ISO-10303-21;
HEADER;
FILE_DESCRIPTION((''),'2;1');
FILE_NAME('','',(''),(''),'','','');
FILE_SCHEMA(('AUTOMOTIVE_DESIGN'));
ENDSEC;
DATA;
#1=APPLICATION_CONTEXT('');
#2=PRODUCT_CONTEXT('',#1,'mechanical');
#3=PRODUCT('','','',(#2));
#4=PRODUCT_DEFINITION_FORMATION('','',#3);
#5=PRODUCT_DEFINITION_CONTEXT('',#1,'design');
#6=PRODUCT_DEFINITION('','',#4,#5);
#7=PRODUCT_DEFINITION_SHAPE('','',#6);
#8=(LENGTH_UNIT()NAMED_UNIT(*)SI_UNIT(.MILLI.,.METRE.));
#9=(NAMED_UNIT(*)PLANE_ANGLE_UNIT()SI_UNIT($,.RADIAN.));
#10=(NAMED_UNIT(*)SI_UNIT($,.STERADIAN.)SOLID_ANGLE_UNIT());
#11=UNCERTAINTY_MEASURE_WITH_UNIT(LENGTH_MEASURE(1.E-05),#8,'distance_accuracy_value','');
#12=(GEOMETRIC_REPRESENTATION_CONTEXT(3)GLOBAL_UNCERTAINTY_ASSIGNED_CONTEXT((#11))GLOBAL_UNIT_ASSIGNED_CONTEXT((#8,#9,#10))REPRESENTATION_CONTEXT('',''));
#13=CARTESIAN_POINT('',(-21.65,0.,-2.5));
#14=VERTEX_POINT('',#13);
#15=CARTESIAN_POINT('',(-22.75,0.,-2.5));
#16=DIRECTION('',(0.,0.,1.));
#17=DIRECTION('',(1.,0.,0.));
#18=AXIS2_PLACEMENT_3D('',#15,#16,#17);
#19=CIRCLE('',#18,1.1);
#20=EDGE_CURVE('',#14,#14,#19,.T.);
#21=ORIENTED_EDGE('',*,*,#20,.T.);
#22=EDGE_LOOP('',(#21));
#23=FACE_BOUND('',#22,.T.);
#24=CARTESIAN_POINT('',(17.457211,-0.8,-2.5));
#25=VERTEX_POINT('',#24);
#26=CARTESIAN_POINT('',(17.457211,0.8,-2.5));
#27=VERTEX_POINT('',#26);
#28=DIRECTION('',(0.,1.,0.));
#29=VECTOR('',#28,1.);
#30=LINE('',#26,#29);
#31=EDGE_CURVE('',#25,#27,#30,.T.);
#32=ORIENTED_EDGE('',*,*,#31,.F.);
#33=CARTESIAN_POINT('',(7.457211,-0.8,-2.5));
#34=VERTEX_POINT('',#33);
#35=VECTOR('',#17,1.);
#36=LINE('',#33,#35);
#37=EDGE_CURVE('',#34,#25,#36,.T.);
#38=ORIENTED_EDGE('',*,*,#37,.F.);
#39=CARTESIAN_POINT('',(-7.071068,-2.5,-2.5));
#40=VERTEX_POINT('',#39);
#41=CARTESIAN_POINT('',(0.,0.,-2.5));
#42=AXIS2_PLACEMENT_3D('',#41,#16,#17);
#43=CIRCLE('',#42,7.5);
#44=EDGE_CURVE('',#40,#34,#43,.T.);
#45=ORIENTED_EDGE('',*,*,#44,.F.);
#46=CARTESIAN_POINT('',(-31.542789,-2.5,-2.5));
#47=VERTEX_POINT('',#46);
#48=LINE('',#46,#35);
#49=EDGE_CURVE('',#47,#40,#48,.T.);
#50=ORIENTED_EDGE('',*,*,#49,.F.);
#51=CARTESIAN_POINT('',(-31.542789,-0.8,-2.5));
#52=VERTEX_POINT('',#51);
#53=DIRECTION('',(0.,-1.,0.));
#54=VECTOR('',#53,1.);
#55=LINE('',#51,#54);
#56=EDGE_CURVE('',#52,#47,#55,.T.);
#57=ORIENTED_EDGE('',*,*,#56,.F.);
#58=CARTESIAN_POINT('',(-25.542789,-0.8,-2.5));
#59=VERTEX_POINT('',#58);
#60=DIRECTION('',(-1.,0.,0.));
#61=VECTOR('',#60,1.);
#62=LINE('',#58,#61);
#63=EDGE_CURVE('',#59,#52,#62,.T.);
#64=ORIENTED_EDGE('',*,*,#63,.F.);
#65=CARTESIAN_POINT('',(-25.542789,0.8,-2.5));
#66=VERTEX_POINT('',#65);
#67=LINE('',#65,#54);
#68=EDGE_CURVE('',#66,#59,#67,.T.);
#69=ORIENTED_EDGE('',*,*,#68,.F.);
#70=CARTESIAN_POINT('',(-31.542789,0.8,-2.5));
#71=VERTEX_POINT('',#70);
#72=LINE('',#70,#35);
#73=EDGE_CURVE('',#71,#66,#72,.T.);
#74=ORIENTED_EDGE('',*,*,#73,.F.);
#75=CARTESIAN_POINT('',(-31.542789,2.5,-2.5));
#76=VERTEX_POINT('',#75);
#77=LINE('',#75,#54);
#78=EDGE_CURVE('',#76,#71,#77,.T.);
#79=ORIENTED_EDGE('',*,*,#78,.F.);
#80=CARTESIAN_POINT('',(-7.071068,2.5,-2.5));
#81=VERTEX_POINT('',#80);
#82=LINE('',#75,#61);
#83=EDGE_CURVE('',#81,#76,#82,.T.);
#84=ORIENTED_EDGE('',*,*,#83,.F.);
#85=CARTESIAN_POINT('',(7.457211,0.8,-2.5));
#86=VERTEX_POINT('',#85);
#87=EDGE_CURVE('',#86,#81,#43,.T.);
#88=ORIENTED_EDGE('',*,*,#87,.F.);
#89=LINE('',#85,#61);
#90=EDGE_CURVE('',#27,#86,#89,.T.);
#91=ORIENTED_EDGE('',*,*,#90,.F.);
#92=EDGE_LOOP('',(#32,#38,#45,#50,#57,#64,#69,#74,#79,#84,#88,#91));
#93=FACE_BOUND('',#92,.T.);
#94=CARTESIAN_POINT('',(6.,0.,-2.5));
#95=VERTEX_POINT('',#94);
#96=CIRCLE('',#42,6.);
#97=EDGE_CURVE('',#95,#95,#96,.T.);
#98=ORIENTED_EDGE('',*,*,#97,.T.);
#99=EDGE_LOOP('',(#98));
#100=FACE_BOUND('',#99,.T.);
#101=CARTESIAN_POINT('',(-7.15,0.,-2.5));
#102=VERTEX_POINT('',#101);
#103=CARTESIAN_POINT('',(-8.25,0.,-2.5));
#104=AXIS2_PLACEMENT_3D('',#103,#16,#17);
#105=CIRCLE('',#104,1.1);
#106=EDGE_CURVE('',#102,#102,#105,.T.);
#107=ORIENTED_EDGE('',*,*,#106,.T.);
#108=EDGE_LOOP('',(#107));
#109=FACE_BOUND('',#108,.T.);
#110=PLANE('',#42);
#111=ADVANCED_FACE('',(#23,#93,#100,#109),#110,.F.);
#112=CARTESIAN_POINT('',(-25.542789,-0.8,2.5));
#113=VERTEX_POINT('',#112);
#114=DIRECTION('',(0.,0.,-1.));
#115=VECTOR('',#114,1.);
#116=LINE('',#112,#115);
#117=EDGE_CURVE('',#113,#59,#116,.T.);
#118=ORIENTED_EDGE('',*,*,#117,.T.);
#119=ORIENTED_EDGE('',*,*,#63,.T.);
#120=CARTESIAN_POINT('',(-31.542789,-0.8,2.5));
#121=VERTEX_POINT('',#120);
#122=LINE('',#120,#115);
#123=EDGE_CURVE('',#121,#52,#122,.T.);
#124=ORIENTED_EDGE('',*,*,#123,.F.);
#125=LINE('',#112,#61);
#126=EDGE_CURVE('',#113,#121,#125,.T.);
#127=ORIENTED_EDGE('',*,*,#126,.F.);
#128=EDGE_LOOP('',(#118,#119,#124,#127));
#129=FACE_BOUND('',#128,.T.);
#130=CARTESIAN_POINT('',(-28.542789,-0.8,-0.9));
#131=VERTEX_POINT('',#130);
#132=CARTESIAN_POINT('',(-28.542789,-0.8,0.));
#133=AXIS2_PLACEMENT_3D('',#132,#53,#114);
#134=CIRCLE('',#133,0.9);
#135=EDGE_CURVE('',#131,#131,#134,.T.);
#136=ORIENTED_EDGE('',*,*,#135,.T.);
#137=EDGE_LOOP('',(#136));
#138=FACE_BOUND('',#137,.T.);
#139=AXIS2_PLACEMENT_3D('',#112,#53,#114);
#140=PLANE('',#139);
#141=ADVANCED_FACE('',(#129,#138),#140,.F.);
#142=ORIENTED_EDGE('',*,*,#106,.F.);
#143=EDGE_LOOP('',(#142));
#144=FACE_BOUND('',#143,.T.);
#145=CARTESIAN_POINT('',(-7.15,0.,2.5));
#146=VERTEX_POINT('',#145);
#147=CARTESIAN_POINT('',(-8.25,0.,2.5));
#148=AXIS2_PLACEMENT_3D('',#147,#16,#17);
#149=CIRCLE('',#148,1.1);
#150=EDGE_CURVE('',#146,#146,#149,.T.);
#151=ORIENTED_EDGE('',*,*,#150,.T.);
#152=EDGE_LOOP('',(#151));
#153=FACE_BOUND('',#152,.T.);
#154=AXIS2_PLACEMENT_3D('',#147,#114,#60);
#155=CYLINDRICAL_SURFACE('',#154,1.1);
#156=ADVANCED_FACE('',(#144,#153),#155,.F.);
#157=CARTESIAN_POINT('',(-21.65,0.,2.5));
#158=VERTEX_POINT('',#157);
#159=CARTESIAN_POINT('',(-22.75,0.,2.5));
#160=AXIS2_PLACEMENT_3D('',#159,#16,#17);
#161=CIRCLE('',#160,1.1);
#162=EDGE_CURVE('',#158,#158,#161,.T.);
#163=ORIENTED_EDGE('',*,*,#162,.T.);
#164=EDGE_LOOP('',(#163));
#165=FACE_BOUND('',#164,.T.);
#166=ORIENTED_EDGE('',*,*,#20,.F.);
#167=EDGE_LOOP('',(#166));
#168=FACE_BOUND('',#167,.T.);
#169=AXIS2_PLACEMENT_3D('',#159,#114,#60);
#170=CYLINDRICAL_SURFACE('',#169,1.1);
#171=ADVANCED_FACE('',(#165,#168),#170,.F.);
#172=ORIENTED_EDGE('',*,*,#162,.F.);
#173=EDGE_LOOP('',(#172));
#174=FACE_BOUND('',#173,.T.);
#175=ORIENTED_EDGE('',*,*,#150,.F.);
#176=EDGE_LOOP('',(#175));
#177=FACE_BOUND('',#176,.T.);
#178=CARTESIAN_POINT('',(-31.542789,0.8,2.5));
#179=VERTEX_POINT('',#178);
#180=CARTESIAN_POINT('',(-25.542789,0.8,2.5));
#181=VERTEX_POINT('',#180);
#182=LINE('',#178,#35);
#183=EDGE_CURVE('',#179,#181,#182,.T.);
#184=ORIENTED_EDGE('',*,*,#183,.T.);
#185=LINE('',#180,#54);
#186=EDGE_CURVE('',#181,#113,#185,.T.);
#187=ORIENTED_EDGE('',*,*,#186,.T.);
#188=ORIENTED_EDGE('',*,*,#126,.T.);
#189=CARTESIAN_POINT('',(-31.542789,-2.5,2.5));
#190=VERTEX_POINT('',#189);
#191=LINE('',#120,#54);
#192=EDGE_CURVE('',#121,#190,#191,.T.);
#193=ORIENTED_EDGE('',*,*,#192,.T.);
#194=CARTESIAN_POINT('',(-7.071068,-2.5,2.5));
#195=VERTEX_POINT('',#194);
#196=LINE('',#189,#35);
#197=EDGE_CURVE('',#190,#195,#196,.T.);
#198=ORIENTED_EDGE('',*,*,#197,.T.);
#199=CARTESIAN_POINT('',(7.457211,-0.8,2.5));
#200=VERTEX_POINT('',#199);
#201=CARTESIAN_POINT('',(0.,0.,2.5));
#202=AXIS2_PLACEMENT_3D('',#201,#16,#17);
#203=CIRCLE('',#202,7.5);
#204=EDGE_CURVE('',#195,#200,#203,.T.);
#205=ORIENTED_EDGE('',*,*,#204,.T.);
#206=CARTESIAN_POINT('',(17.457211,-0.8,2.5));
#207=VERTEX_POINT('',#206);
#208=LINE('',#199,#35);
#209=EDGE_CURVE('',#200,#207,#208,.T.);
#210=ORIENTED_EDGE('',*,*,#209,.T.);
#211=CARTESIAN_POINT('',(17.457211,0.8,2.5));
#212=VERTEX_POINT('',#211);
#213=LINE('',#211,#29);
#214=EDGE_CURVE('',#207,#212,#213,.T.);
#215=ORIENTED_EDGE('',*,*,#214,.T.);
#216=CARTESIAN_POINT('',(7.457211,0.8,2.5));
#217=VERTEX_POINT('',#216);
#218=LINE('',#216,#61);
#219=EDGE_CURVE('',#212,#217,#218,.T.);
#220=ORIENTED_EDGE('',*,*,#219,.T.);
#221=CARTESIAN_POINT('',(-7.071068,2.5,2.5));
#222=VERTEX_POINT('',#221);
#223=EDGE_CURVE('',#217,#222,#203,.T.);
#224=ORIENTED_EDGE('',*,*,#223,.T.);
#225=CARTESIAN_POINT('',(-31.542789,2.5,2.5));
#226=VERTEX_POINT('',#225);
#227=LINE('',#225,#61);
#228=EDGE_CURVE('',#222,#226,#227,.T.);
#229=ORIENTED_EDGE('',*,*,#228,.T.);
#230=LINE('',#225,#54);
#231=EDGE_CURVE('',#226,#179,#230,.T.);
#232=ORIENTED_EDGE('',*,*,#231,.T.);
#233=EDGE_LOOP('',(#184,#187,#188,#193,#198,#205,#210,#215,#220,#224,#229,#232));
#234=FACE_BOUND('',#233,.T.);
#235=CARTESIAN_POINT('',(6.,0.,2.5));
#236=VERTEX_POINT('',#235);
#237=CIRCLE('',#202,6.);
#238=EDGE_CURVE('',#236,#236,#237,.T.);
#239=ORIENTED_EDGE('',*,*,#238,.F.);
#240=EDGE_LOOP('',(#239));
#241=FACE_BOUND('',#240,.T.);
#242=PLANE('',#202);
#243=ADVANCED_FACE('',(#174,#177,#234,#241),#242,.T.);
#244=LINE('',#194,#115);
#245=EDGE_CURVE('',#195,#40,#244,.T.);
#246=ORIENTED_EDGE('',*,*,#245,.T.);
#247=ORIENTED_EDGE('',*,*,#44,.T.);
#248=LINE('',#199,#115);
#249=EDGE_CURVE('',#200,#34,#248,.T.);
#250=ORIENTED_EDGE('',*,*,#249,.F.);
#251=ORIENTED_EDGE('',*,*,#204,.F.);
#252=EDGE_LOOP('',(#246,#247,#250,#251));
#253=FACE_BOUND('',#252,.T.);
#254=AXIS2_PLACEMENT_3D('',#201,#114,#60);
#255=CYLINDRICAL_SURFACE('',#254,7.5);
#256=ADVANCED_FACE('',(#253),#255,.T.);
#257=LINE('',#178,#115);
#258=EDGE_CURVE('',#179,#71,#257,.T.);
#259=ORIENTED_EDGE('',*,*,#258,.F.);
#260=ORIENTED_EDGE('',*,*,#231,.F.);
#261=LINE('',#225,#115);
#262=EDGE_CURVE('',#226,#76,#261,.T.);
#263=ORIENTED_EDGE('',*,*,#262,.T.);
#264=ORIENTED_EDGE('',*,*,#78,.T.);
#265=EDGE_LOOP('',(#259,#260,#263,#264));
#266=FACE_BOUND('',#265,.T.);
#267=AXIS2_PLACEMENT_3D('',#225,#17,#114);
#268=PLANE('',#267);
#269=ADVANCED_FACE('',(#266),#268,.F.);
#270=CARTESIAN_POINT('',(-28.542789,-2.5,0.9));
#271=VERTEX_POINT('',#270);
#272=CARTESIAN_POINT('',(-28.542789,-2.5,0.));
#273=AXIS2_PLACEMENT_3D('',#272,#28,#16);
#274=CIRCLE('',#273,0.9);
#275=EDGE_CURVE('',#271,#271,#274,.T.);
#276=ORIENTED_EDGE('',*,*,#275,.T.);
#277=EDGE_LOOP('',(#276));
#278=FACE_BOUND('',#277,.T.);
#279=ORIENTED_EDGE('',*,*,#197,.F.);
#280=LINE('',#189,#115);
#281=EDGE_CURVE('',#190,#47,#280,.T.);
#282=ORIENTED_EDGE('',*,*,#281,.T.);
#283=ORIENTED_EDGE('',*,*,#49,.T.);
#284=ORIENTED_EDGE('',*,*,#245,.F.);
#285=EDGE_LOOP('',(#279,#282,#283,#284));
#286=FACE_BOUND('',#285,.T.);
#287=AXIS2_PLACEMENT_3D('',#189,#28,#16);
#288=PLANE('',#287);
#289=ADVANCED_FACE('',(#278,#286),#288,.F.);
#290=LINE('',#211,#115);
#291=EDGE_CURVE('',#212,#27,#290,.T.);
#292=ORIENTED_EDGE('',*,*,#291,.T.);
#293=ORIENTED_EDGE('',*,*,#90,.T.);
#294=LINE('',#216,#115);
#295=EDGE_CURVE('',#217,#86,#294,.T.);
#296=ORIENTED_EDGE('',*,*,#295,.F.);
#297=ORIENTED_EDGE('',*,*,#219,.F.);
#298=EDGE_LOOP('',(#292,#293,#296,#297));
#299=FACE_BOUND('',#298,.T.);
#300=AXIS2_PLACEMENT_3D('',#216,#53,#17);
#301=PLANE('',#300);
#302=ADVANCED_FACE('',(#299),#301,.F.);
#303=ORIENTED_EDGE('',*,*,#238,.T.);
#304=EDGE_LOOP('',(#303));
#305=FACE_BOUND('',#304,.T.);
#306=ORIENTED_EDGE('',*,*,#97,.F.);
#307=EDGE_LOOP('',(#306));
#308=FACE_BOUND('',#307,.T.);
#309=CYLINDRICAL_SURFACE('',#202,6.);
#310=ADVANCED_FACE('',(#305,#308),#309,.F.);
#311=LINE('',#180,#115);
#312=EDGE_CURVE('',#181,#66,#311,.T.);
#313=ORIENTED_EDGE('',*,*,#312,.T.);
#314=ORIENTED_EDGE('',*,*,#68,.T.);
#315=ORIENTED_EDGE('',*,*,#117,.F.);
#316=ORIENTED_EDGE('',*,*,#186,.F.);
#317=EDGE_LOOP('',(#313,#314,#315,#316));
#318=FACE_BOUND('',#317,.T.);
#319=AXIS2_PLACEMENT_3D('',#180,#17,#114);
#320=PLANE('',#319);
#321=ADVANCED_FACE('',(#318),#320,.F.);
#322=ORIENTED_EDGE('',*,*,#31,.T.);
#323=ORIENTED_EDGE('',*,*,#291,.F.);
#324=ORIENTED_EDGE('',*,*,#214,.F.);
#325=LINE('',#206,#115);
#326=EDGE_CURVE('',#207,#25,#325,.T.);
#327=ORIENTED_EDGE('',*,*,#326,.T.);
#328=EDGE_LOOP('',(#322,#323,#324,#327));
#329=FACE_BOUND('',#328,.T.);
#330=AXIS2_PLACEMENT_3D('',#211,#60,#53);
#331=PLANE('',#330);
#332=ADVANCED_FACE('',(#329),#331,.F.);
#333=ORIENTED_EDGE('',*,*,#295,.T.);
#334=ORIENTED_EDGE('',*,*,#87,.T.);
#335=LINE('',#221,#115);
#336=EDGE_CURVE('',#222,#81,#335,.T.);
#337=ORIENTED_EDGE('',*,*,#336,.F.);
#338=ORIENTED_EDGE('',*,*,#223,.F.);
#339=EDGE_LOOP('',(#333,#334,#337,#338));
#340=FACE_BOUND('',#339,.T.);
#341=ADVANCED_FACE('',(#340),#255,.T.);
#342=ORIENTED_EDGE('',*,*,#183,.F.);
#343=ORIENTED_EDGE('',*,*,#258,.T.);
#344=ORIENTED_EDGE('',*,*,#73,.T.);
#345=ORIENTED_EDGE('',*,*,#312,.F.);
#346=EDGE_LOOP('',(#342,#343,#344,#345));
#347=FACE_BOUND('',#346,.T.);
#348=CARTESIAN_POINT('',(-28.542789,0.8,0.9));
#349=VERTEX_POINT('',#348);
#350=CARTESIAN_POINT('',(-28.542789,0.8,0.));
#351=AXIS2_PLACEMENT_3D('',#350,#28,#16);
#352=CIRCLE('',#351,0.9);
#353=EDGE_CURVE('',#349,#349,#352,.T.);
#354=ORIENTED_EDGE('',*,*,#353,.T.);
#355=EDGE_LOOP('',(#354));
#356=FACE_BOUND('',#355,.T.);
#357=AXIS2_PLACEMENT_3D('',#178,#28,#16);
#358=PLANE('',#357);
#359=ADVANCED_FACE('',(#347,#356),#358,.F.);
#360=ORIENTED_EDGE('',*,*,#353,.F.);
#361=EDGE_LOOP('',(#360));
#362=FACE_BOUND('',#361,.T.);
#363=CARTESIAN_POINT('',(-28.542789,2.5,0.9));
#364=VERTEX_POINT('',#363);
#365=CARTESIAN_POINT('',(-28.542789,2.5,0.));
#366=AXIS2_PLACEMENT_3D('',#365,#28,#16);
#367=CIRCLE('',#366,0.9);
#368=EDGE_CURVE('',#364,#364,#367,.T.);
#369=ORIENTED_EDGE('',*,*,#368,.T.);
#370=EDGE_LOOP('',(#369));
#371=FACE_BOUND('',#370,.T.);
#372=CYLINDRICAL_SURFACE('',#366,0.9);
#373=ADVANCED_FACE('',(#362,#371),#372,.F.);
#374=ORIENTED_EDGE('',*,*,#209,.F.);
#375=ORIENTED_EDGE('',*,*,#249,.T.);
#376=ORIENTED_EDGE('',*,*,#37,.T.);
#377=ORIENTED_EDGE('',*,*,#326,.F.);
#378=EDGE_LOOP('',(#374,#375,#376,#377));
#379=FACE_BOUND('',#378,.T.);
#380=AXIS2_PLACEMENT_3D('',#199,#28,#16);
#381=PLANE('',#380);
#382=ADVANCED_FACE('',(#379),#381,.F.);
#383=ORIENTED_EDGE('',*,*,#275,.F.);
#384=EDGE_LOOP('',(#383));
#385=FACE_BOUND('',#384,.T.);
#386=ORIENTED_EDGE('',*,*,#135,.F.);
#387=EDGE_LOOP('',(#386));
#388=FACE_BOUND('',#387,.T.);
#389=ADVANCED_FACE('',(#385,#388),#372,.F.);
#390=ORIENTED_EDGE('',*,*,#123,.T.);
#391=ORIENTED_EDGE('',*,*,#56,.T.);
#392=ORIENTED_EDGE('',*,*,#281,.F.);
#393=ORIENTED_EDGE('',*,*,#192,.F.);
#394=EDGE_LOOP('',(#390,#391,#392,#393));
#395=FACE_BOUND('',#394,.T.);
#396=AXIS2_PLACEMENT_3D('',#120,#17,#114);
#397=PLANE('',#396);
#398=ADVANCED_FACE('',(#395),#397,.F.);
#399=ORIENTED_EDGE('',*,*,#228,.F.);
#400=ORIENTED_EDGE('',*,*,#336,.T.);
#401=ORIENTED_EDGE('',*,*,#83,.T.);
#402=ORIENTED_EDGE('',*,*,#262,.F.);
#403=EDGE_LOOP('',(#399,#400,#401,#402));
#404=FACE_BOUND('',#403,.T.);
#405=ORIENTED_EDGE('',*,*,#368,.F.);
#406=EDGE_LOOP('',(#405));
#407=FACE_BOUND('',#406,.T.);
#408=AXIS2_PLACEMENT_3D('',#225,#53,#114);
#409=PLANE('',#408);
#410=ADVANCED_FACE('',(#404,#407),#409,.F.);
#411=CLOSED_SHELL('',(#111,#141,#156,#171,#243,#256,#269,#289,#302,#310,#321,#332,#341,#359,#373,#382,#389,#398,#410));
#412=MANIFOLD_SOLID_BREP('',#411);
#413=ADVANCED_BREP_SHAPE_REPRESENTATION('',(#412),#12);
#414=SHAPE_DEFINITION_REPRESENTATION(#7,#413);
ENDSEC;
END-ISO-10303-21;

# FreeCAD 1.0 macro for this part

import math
import FreeCAD as App
import Part
import Sketcher

doc = App.newDocument("Part")
body = doc.addObject("PartDesign::Body", "Body")

sketch1 = body.newObject("Sketcher::SketchObject", "Sketch")
sketch1.AttachmentSupport = (doc.getObject("XY_Plane"), [""])
sketch1.MapMode = "FlatFace"
sketch1.addGeometry(Part.LineSegment(App.Vector(-7.1, 2.5, 0), App.Vector(-31.5, 2.5, 0)), False)
sketch1.addGeometry(Part.LineSegment(App.Vector(-31.5, 2.5, 0), App.Vector(-31.5, 0.8, 0)), False)
sketch1.addGeometry(Part.LineSegment(App.Vector(-31.5, 0.8, 0), App.Vector(-25.5, 0.8, 0)), False)
sketch1.addGeometry(Part.LineSegment(App.Vector(-25.5, 0.8, 0), App.Vector(-25.5, -0.8, 0)), False)
sketch1.addGeometry(Part.LineSegment(App.Vector(-25.5, -0.8, 0), App.Vector(-31.5, -0.8, 0)), False)
sketch1.addGeometry(Part.LineSegment(App.Vector(-31.5, -0.8, 0), App.Vector(-31.5, -2.5, 0)), False)
sketch1.addGeometry(Part.LineSegment(App.Vector(-31.5, -2.5, 0), App.Vector(-7.1, -2.5, 0)), False)
sketch1.addGeometry(Part.ArcOfCircle(Part.Circle(App.Vector(0, 0, 0), App.Vector(0, 0, 1), 7.5), math.radians(-161), math.radians(-6)), False)
sketch1.addGeometry(Part.LineSegment(App.Vector(7.5, -0.8, 0), App.Vector(17.5, -0.8, 0)), False)
sketch1.addGeometry(Part.LineSegment(App.Vector(17.5, -0.8, 0), App.Vector(17.5, 0.8, 0)), False)
sketch1.addGeometry(Part.LineSegment(App.Vector(17.5, 0.8, 0), App.Vector(7.5, 0.8, 0)), False)
sketch1.addGeometry(Part.ArcOfCircle(Part.Circle(App.Vector(0, 0, 0), App.Vector(0, 0, 1), 7.5), math.radians(6), math.radians(161)), False)
sketch1.addConstraint(Sketcher.Constraint("Coincident", 0, 2, 1, 1))
sketch1.addConstraint(Sketcher.Constraint("Coincident", 1, 2, 2, 1))
sketch1.addConstraint(Sketcher.Constraint("Coincident", 2, 2, 3, 1))
sketch1.addConstraint(Sketcher.Constraint("Coincident", 3, 2, 4, 1))
sketch1.addConstraint(Sketcher.Constraint("Coincident", 4, 2, 5, 1))
sketch1.addConstraint(Sketcher.Constraint("Coincident", 5, 2, 6, 1))
sketch1.addConstraint(Sketcher.Constraint("Coincident", 6, 2, 7, 1))
sketch1.addConstraint(Sketcher.Constraint("Coincident", 7, 2, 8, 1))
sketch1.addConstraint(Sketcher.Constraint("Coincident", 8, 2, 9, 1))
sketch1.addConstraint(Sketcher.Constraint("Coincident", 9, 2, 10, 1))
sketch1.addConstraint(Sketcher.Constraint("Coincident", 10, 2, 11, 1))
sketch1.addConstraint(Sketcher.Constraint("Coincident", 11, 2, 0, 1))
sketch1.addConstraint(Sketcher.Constraint("Horizontal", 0))
sketch1.addConstraint(Sketcher.Constraint("Vertical", 1))
sketch1.addConstraint(Sketcher.Constraint("Horizontal", 2))
sketch1.addConstraint(Sketcher.Constraint("Vertical", 3))
sketch1.addConstraint(Sketcher.Constraint("Horizontal", 4))
sketch1.addConstraint(Sketcher.Constraint("Vertical", 5))
sketch1.addConstraint(Sketcher.Constraint("Horizontal", 6))
sketch1.addConstraint(Sketcher.Constraint("Horizontal", 8))
sketch1.addConstraint(Sketcher.Constraint("Vertical", 9))
sketch1.addConstraint(Sketcher.Constraint("Horizontal", 10))
sketch1.addConstraint(Sketcher.Constraint("Coincident", 7, 3, -1, 1))
sketch1.addConstraint(Sketcher.Constraint("Coincident", 11, 3, -1, 1))
sketch1.addConstraint(Sketcher.Constraint("Equal", 7, 11))
sketch1.addConstraint(Sketcher.Constraint("Symmetric", 1, 2, 4, 2, -1))
sketch1.addConstraint(Sketcher.Constraint("Horizontal", 4, 2, 7, 2))
sketch1.addConstraint(Sketcher.Constraint("Horizontal", 2, 2, 9, 2))
sketch1.addConstraint(Sketcher.Constraint("Vertical", 6, 2, 11, 2))
sketch1.addConstraint(Sketcher.Constraint("Radius", 7, 7.5))
sketch1.addConstraint(Sketcher.Constraint("DistanceX", 2, 1, 2, 2, 6.0))
sketch1.addConstraint(Sketcher.Constraint("DistanceX", 8, 1, 8, 2, 10.0))
sketch1.addConstraint(Sketcher.Constraint("DistanceY", 1, 2, 1, 1, 1.7))
sketch1.addConstraint(Sketcher.Constraint("DistanceY", 3, 2, 3, 1, 1.6))
sketch1.addConstraint(Sketcher.Constraint("DistanceX", 3, 2, 7, 2, 33.0))
pad1 = body.newObject("PartDesign::Pad", "Pad")
pad1.Profile = sketch1
pad1.Length = 5
pad1.Midplane = True

sketch2 = body.newObject("Sketcher::SketchObject", "Sketch001")
sketch2.AttachmentSupport = (doc.getObject("XY_Plane"), [""])
sketch2.MapMode = "FlatFace"
sketch2.AttachmentOffset = App.Placement(App.Vector(0, 0, 2.5), App.Rotation())
sketch2.addGeometry(Part.Circle(App.Vector(0, 0, 0), App.Vector(0, 0, 1), 6), False)
sketch2.addConstraint(Sketcher.Constraint("Coincident", 0, 3, -1, 1))
sketch2.addConstraint(Sketcher.Constraint("Diameter", 0, 12.0))
doc.recompute()
hole = body.newObject("PartDesign::Hole", "Hole")
hole.Profile = sketch2
hole.ThreadType = "None"
hole.Diameter = 12
hole.DepthType = "ThroughAll"

sketch3 = body.newObject("Sketcher::SketchObject", "Sketch002")
sketch3.AttachmentSupport = (doc.getObject("XZ_Plane"), [""])
sketch3.MapMode = "FlatFace"
sketch3.AttachmentOffset = App.Placement(App.Vector(0, 0, -2.5), App.Rotation())
sketch3.addGeometry(Part.Circle(App.Vector(-28.5, 0, 0), App.Vector(0, 0, 1), 0.9), False)
sketch3.addConstraint(Sketcher.Constraint("PointOnObject", 0, 3, -1))
sketch3.addConstraint(Sketcher.Constraint("Diameter", 0, 1.8))
sketch3.addConstraint(Sketcher.Constraint("DistanceX", 0, 3, -1, 1, 28.542789))
doc.recompute()
hole2 = body.newObject("PartDesign::Hole", "Hole001")
hole2.Profile = sketch3
hole2.ThreadType = "None"
hole2.Diameter = 1.8
hole2.DepthType = "ThroughAll"
hole2.Reversed = True

sketch4 = body.newObject("Sketcher::SketchObject", "Sketch003")
sketch4.AttachmentSupport = (doc.getObject("XY_Plane"), [""])
sketch4.MapMode = "FlatFace"
sketch4.AttachmentOffset = App.Placement(App.Vector(0, 0, -2.5), App.Rotation())
sketch4.addGeometry(Part.Circle(App.Vector(-8.2, 0, 0), App.Vector(0, 0, 1), 1.1), False)
sketch4.addGeometry(Part.Circle(App.Vector(-22.8, 0, 0), App.Vector(0, 0, 1), 1.1), False)
sketch4.addConstraint(Sketcher.Constraint("Equal", 0, 1))
sketch4.addConstraint(Sketcher.Constraint("PointOnObject", 0, 3, -1))
sketch4.addConstraint(Sketcher.Constraint("PointOnObject", 1, 3, -1))
sketch4.addConstraint(Sketcher.Constraint("Diameter", 0, 2.2))
sketch4.addConstraint(Sketcher.Constraint("DistanceX", 1, 3, 0, 3, 14.5))
sketch4.addConstraint(Sketcher.Constraint("DistanceX", 0, 3, -1, 1, 8.25))
pocket1 = body.newObject("PartDesign::Pocket", "Pocket")
pocket1.Profile = sketch4
pocket1.Type = "ThroughAll"
pocket1.Reversed = True

doc.recompute()
